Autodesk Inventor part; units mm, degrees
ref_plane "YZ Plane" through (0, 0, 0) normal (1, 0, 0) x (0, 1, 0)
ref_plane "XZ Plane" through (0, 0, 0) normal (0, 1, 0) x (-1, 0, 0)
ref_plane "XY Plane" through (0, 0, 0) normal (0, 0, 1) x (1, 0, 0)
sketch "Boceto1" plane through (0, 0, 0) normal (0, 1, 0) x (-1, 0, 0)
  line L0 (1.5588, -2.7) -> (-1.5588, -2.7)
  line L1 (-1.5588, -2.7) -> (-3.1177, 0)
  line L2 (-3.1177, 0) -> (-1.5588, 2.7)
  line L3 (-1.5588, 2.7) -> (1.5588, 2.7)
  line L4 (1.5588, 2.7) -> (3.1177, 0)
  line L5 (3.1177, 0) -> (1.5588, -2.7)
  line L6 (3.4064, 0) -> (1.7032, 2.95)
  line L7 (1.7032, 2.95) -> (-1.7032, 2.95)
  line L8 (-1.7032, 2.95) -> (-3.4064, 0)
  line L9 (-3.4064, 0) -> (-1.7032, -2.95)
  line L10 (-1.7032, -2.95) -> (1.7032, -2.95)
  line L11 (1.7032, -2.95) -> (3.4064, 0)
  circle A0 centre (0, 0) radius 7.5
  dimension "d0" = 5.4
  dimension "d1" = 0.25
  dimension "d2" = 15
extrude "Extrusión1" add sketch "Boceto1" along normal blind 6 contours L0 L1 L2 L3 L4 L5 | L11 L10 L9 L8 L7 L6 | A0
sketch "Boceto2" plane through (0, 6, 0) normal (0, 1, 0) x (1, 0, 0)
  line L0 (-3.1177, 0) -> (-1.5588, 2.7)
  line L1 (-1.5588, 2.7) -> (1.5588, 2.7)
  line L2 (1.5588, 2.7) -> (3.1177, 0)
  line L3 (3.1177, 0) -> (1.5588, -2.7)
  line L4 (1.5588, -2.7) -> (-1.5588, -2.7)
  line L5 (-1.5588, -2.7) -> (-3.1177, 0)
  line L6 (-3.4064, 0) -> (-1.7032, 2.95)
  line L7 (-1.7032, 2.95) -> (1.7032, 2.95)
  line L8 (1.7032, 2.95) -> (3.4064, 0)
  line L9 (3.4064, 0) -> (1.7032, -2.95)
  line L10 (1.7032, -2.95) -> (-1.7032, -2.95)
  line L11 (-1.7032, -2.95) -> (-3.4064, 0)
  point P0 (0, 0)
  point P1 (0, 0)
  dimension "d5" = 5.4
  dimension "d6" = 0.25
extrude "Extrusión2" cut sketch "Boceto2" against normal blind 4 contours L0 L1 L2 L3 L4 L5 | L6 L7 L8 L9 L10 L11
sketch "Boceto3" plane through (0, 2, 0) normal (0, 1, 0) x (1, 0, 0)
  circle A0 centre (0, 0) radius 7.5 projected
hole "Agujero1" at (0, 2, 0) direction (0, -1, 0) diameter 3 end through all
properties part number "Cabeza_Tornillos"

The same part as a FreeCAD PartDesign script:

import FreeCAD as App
import Part
import Sketcher
Q = App.Units.Quantity


def add_polygon(sketch, points):
    """Adds a closed chain of lines whose ends are joined by coincident constraints."""
    first, n = sketch.GeometryCount, len(points)
    for a, b in zip(points, points[1:] + points[:1]):
        sketch.addGeometry(Part.LineSegment(App.Vector(*a, 0), App.Vector(*b, 0)), False)
    for i in range(n):
        sketch.addConstraint(Sketcher.Constraint("Coincident", first + i, 2, first + (i + 1) % n, 1))

doc = App.newDocument("Part")
body = doc.addObject("PartDesign::Body", "Body")

sketch1 = doc.addObject("Sketcher::SketchObject", "Sketch")
body.addObject(sketch1)
sketch1.AttachmentSupport = (doc.XZ_Plane, [""])
sketch1.MapMode = "FlatFace"
sketch1.addGeometry(Part.Circle(App.Vector(0, 0, 0), App.Vector(0, 0, 1), 8), False)
sketch1.addConstraint(Sketcher.Constraint("Coincident", 0, 3, -1, 1))
sketch1.addConstraint(Sketcher.Constraint("Diameter", 0, Q("15 mm")))
pad1 = doc.addObject("PartDesign::Pad", "Pad")
body.addObject(pad1)
pad1.Profile = sketch1
pad1.Length = 6
pad1.Reversed = True

sketch2 = doc.addObject("Sketcher::SketchObject", "Sketch001")
body.addObject(sketch2)
sketch2.AttachmentSupport = (doc.XZ_Plane, [""])
sketch2.MapMode = "FlatFace"
sketch2.AttachmentOffset = App.Placement(App.Vector(0, 0, -6), App.Rotation())
add_polygon(sketch2, [(-1.7, -3), (-3.4, 0), (-1.7, 3), (1.7, 3), (3.4, 0), (1.7, -3)])
sketch2.addConstraint(Sketcher.Constraint("Horizontal", 2))
sketch2.addConstraint(Sketcher.Constraint("Horizontal", 5))
sketch2.addConstraint(Sketcher.Constraint("Symmetric", 0, 2, 3, 2, -1, 1))
sketch2.addConstraint(Sketcher.Constraint("Symmetric", 1, 2, 4, 2, -1, 1))
sketch2.addConstraint(Sketcher.Constraint("PointOnObject", 0, 2, -1))
sketch2.addConstraint(Sketcher.Constraint("Parallel", 0, 3))
sketch2.addConstraint(Sketcher.Constraint("Vertical", 2, 2, 4, 2))
sketch2.addConstraint(Sketcher.Constraint("Angle", 0, Q("120.0002 deg")))
sketch2.addConstraint(Sketcher.Constraint("DistanceY", 4, 2, 2, 2, Q("5.9 mm")))
sketch2.addConstraint(Sketcher.Constraint("DistanceX", 2, 1, 2, 2, Q("3.4064 mm")))
pocket1 = doc.addObject("PartDesign::Pocket", "Pocket")
body.addObject(pocket1)
pocket1.Profile = sketch2
pocket1.Length = 4
pocket1.Reversed = True

sketch3 = doc.addObject("Sketcher::SketchObject", "Sketch002")
body.addObject(sketch3)
sketch3.AttachmentSupport = (doc.XZ_Plane, [""])
sketch3.MapMode = "FlatFace"
sketch3.AttachmentOffset = App.Placement(App.Vector(0, 0, -2), App.Rotation())
sketch3.addGeometry(Part.Circle(App.Vector(0, 0, 0), App.Vector(0, 0, 1), 1.5), False)
sketch3.addConstraint(Sketcher.Constraint("Coincident", 0, 3, -1, 1))
sketch3.addConstraint(Sketcher.Constraint("Diameter", 0, Q("3 mm")))
doc.recompute()
hole = doc.addObject("PartDesign::Hole", "Hole")
body.addObject(hole)
hole.Profile = sketch3
hole.ThreadType = "None"
hole.Diameter = 3
hole.DepthType = "ThroughAll"
hole.Reversed = True

doc.recompute()
